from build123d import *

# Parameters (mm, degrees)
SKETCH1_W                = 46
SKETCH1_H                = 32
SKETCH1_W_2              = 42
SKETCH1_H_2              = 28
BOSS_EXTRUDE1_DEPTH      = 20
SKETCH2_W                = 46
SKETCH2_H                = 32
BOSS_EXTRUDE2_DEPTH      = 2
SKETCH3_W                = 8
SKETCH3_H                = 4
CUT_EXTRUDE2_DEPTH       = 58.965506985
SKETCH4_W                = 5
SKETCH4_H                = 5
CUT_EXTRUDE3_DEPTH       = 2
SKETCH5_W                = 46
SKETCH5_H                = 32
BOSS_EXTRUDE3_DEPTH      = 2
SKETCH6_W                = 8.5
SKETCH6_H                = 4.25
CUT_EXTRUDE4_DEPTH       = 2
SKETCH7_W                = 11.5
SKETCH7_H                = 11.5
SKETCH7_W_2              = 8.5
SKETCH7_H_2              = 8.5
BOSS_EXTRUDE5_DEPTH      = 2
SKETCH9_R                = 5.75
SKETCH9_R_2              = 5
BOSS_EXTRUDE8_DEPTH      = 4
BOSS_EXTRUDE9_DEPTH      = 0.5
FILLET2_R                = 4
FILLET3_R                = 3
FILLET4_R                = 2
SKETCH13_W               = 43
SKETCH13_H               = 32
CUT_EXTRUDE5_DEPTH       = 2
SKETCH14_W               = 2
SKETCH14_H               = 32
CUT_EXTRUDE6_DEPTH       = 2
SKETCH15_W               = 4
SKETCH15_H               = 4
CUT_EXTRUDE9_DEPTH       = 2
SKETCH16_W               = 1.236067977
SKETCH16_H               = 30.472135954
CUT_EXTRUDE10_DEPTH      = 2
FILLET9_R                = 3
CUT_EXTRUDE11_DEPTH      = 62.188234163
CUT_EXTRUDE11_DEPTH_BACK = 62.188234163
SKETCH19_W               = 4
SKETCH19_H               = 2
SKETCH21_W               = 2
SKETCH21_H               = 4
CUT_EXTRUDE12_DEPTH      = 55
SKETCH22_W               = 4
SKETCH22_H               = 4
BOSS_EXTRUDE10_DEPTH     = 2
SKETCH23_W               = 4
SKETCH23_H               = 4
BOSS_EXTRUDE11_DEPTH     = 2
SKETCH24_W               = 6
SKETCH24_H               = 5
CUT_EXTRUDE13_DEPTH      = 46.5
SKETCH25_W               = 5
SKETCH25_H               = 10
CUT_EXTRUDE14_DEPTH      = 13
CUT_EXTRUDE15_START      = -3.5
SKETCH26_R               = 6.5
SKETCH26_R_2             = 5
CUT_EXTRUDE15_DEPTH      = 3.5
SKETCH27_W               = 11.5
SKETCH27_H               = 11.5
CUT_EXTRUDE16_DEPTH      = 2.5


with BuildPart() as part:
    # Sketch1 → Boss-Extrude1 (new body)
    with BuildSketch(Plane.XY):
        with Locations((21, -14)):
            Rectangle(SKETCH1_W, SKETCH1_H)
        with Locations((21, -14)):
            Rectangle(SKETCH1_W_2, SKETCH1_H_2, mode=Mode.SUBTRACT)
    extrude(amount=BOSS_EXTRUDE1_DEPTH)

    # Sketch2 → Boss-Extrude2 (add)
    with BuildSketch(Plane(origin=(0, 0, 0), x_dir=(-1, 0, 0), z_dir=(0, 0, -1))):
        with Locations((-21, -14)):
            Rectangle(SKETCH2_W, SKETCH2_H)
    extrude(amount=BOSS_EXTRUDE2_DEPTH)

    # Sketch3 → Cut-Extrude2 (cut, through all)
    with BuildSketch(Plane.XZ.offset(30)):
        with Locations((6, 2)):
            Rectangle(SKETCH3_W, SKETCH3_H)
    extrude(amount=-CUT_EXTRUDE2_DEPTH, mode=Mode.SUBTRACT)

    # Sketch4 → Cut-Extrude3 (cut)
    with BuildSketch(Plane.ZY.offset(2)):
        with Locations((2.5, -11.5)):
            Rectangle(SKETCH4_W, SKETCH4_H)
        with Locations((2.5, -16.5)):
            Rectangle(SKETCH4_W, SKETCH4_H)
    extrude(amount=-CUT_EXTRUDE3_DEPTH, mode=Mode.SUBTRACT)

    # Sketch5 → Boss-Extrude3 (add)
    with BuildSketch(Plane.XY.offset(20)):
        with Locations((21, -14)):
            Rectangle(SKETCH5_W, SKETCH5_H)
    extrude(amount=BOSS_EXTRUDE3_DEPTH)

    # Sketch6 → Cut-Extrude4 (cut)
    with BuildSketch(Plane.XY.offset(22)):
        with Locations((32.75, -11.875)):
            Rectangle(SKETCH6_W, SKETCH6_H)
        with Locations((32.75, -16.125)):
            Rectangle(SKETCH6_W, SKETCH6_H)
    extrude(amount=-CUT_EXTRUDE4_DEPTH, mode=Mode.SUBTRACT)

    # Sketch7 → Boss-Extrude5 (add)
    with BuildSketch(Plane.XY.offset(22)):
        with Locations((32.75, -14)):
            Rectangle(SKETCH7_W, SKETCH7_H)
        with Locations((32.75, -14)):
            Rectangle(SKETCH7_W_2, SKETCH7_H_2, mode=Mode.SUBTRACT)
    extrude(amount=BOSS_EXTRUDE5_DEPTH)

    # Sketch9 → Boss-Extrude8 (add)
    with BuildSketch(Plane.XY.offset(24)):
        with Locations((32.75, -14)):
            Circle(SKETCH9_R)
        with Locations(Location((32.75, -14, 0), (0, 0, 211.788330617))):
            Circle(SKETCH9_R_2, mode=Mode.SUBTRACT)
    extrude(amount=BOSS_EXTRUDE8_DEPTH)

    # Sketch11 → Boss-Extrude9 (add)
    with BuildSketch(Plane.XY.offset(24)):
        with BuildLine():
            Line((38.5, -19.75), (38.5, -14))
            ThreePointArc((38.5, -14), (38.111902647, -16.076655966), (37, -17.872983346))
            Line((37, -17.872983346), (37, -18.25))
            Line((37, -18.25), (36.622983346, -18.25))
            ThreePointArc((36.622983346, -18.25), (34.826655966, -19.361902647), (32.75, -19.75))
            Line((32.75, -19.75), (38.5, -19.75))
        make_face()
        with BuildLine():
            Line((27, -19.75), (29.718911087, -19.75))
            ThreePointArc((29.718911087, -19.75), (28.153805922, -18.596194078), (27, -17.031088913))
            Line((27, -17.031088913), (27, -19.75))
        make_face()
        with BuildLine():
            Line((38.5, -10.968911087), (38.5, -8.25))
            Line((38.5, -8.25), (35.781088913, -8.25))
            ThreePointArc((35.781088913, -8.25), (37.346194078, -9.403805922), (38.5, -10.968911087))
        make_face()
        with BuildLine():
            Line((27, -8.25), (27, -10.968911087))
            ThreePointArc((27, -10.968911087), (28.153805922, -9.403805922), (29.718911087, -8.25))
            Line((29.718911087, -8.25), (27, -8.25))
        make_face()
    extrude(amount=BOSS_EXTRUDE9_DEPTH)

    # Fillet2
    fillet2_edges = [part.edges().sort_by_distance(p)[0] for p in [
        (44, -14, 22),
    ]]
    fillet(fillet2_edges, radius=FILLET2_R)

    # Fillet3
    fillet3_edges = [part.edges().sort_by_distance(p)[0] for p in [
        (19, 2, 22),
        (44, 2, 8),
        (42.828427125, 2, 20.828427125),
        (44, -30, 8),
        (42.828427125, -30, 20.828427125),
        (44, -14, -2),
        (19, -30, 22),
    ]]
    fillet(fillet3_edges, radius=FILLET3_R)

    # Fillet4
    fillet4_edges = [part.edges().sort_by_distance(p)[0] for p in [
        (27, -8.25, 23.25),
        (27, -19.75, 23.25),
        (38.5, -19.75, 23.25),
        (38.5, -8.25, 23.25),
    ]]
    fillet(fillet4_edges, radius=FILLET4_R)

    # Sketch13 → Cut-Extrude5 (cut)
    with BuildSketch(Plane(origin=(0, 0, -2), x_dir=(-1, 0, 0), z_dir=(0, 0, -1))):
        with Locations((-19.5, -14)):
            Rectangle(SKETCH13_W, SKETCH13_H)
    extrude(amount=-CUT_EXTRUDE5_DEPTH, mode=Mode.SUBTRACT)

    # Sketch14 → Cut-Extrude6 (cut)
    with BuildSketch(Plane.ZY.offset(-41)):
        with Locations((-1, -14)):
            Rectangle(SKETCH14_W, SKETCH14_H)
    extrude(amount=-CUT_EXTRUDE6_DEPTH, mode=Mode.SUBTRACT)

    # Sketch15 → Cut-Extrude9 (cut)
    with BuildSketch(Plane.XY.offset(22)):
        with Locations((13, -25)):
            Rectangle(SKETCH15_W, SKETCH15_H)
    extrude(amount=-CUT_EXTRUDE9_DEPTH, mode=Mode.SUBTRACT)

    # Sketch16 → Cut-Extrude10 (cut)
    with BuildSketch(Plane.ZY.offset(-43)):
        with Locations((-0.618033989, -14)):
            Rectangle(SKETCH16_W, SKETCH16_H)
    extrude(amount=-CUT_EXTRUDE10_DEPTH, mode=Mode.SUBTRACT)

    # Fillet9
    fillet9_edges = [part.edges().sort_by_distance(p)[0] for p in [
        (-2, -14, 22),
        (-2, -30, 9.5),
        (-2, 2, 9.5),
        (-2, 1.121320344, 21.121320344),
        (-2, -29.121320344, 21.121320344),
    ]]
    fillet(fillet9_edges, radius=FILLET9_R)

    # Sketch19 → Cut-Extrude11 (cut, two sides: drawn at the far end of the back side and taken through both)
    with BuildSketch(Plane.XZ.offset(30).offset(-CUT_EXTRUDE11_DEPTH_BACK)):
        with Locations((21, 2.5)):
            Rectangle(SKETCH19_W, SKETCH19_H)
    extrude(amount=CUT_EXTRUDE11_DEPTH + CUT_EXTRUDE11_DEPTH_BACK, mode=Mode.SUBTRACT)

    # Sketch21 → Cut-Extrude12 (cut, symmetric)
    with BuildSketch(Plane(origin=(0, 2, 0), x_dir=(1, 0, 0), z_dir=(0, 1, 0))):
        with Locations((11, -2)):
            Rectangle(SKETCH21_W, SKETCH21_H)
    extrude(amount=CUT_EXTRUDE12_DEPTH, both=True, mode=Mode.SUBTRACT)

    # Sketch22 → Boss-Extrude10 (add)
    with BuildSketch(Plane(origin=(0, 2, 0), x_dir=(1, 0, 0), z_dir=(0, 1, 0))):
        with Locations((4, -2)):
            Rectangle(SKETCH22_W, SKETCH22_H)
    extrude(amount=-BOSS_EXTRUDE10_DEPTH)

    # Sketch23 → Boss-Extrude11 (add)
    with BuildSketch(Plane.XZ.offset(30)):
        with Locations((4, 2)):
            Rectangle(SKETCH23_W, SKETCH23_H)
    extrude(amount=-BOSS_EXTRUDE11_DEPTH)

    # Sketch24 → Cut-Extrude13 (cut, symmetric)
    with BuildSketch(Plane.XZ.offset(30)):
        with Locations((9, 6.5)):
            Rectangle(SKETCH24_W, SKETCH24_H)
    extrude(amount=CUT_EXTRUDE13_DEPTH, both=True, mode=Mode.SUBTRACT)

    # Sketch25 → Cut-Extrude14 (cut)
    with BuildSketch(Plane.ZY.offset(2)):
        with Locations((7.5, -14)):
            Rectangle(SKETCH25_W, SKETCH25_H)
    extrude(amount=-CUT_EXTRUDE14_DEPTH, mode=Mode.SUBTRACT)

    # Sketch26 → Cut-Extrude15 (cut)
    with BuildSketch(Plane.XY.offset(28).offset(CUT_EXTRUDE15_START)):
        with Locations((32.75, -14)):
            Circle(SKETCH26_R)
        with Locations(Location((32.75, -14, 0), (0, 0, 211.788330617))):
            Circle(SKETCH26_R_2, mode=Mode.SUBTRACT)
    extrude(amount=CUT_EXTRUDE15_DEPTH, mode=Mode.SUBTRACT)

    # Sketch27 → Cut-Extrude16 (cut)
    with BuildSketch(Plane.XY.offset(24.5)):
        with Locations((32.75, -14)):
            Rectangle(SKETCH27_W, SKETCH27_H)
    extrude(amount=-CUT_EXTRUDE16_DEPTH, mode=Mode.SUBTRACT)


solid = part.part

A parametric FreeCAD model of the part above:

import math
import FreeCAD as App
import Part
import Sketcher


def edges_at(feature, points):
    """Names of the edges that pass closest to the given points."""
    edges = feature.Shape.Edges
    near = lambda p: min(range(len(edges)), key=lambda i: edges[i].distToShape(Part.Vertex(*p))[0])
    return sorted({f"Edge{near(p) + 1}" for p in points})

doc = App.newDocument("Part")
body = doc.addObject("PartDesign::Body", "Body")

sketch1 = body.newObject("Sketcher::SketchObject", "Sketch")
sketch1.AttachmentSupport = (doc.getObject("XY_Plane"), [""])
sketch1.MapMode = "FlatFace"
sketch1.addGeometry(Part.LineSegment(App.Vector(-2, 2, 0), App.Vector(-2, -30, 0)), False)
sketch1.addGeometry(Part.LineSegment(App.Vector(-2, -30, 0), App.Vector(44, -30, 0)), False)
sketch1.addGeometry(Part.LineSegment(App.Vector(44, -30, 0), App.Vector(44, 2, 0)), False)
sketch1.addGeometry(Part.LineSegment(App.Vector(44, 2, 0), App.Vector(-2, 2, 0)), False)
sketch1.addGeometry(Part.LineSegment(App.Vector(42, -28, 0), App.Vector(0, -28, 0)), False)
sketch1.addGeometry(Part.LineSegment(App.Vector(0, -28, 0), App.Vector(0, 0, 0)), False)
sketch1.addGeometry(Part.LineSegment(App.Vector(0, 0, 0), App.Vector(42, 0, 0)), False)
sketch1.addGeometry(Part.LineSegment(App.Vector(42, 0, 0), App.Vector(42, -28, 0)), False)
sketch1.addConstraint(Sketcher.Constraint("Coincident", 0, 2, 1, 1))
sketch1.addConstraint(Sketcher.Constraint("Coincident", 1, 2, 2, 1))
sketch1.addConstraint(Sketcher.Constraint("Coincident", 2, 2, 3, 1))
sketch1.addConstraint(Sketcher.Constraint("Coincident", 3, 2, 0, 1))
sketch1.addConstraint(Sketcher.Constraint("Coincident", 4, 2, 5, 1))
sketch1.addConstraint(Sketcher.Constraint("Coincident", 5, 2, 6, 1))
sketch1.addConstraint(Sketcher.Constraint("Coincident", 6, 2, 7, 1))
sketch1.addConstraint(Sketcher.Constraint("Coincident", 7, 2, 4, 1))
sketch1.addConstraint(Sketcher.Constraint("Vertical", 0))
sketch1.addConstraint(Sketcher.Constraint("Horizontal", 1))
sketch1.addConstraint(Sketcher.Constraint("Vertical", 2))
sketch1.addConstraint(Sketcher.Constraint("Horizontal", 3))
sketch1.addConstraint(Sketcher.Constraint("Horizontal", 4))
sketch1.addConstraint(Sketcher.Constraint("Vertical", 5))
sketch1.addConstraint(Sketcher.Constraint("Horizontal", 6))
sketch1.addConstraint(Sketcher.Constraint("Vertical", 7))
sketch1.addConstraint(Sketcher.Constraint("Coincident", 5, 2, -1, 1))
sketch1.addConstraint(Sketcher.Constraint("DistanceX", 1, 1, 1, 2, 46.0))
sketch1.addConstraint(Sketcher.Constraint("DistanceX", 4, 2, 4, 1, 42.0))
sketch1.addConstraint(Sketcher.Constraint("DistanceY", 0, 2, 0, 1, 32.0))
sketch1.addConstraint(Sketcher.Constraint("DistanceY", 5, 1, 5, 2, 28.0))
sketch1.addConstraint(Sketcher.Constraint("DistanceX", 0, 2, -1, 1, 2.0))
sketch1.addConstraint(Sketcher.Constraint("DistanceY", 0, 2, -1, 1, 30.0))
pad1 = body.newObject("PartDesign::Pad", "Pad")
pad1.Profile = sketch1
pad1.Length = 20

sketch2 = body.newObject("Sketcher::SketchObject", "Sketch001")
sketch2.AttachmentSupport = (doc.getObject("XY_Plane"), [""])
sketch2.MapMode = "FlatFace"
sketch2.addGeometry(Part.LineSegment(App.Vector(44, 2, 0), App.Vector(44, -30, 0)), False)
sketch2.addGeometry(Part.LineSegment(App.Vector(44, -30, 0), App.Vector(-2, -30, 0)), False)
sketch2.addGeometry(Part.LineSegment(App.Vector(-2, -30, 0), App.Vector(-2, 2, 0)), False)
sketch2.addGeometry(Part.LineSegment(App.Vector(-2, 2, 0), App.Vector(44, 2, 0)), False)
sketch2.addConstraint(Sketcher.Constraint("Coincident", 0, 2, 1, 1))
sketch2.addConstraint(Sketcher.Constraint("Coincident", 1, 2, 2, 1))
sketch2.addConstraint(Sketcher.Constraint("Coincident", 2, 2, 3, 1))
sketch2.addConstraint(Sketcher.Constraint("Coincident", 3, 2, 0, 1))
sketch2.addConstraint(Sketcher.Constraint("Vertical", 0))
sketch2.addConstraint(Sketcher.Constraint("Horizontal", 1))
sketch2.addConstraint(Sketcher.Constraint("Vertical", 2))
sketch2.addConstraint(Sketcher.Constraint("Horizontal", 3))
sketch2.addConstraint(Sketcher.Constraint("DistanceX", 1, 2, 1, 1, 46.0))
sketch2.addConstraint(Sketcher.Constraint("DistanceY", 0, 2, 0, 1, 32.0))
sketch2.addConstraint(Sketcher.Constraint("DistanceX", -1, 1, 0, 2, 44.0))
sketch2.addConstraint(Sketcher.Constraint("DistanceY", 0, 2, -1, 1, 30.0))
pad2 = body.newObject("PartDesign::Pad", "Pad001")
pad2.Profile = sketch2
pad2.Length = 2
pad2.Reversed = True

sketch3 = body.newObject("Sketcher::SketchObject", "Sketch002")
sketch3.AttachmentSupport = (doc.getObject("XZ_Plane"), [""])
sketch3.MapMode = "FlatFace"
sketch3.AttachmentOffset = App.Placement(App.Vector(0, 0, 30), App.Rotation())
sketch3.addGeometry(Part.LineSegment(App.Vector(2, 4, 0), App.Vector(2, 0, 0)), False)
sketch3.addGeometry(Part.LineSegment(App.Vector(2, 0, 0), App.Vector(10, 0, 0)), False)
sketch3.addGeometry(Part.LineSegment(App.Vector(10, 0, 0), App.Vector(10, 4, 0)), False)
sketch3.addGeometry(Part.LineSegment(App.Vector(10, 4, 0), App.Vector(2, 4, 0)), False)
sketch3.addConstraint(Sketcher.Constraint("Coincident", 0, 2, 1, 1))
sketch3.addConstraint(Sketcher.Constraint("Coincident", 1, 2, 2, 1))
sketch3.addConstraint(Sketcher.Constraint("Coincident", 2, 2, 3, 1))
sketch3.addConstraint(Sketcher.Constraint("Coincident", 3, 2, 0, 1))
sketch3.addConstraint(Sketcher.Constraint("Vertical", 0))
sketch3.addConstraint(Sketcher.Constraint("Horizontal", 1))
sketch3.addConstraint(Sketcher.Constraint("Vertical", 2))
sketch3.addConstraint(Sketcher.Constraint("Horizontal", 3))
sketch3.addConstraint(Sketcher.Constraint("PointOnObject", 0, 2, -1))
sketch3.addConstraint(Sketcher.Constraint("DistanceX", 1, 1, 1, 2, 8.0))
sketch3.addConstraint(Sketcher.Constraint("DistanceY", 0, 2, 0, 1, 4.0))
sketch3.addConstraint(Sketcher.Constraint("DistanceX", -1, 1, 0, 2, 2.0))
pocket1 = body.newObject("PartDesign::Pocket", "Pocket")
pocket1.Profile = sketch3
pocket1.Type = "ThroughAll"

sketch4 = body.newObject("Sketcher::SketchObject", "Sketch003")
sketch4.AttachmentSupport = (doc.getObject("YZ_Plane"), [""])
sketch4.MapMode = "FlatFace"
sketch4.AttachmentOffset = App.Placement(App.Vector(0, 0, -2), App.Rotation())
sketch4.addGeometry(Part.LineSegment(App.Vector(-9, 0, 0), App.Vector(-19, 0, 0)), False)
sketch4.addGeometry(Part.LineSegment(App.Vector(-19, 0, 0), App.Vector(-19, 5, 0)), False)
sketch4.addGeometry(Part.LineSegment(App.Vector(-19, 5, 0), App.Vector(-9, 5, 0)), False)
sketch4.addGeometry(Part.LineSegment(App.Vector(-9, 5, 0), App.Vector(-9, 0, 0)), False)
sketch4.addConstraint(Sketcher.Constraint("Coincident", 0, 2, 1, 1))
sketch4.addConstraint(Sketcher.Constraint("Coincident", 1, 2, 2, 1))
sketch4.addConstraint(Sketcher.Constraint("Coincident", 2, 2, 3, 1))
sketch4.addConstraint(Sketcher.Constraint("Coincident", 3, 2, 0, 1))
sketch4.addConstraint(Sketcher.Constraint("Horizontal", 0))
sketch4.addConstraint(Sketcher.Constraint("Vertical", 1))
sketch4.addConstraint(Sketcher.Constraint("Horizontal", 2))
sketch4.addConstraint(Sketcher.Constraint("Vertical", 3))
sketch4.addConstraint(Sketcher.Constraint("PointOnObject", 0, 2, -1))
sketch4.addConstraint(Sketcher.Constraint("DistanceX", 0, 2, 0, 1, 10.0))
sketch4.addConstraint(Sketcher.Constraint("DistanceY", 1, 1, 1, 2, 5.0))
sketch4.addConstraint(Sketcher.Constraint("DistanceX", 0, 2, -1, 1, 19.0))
pocket2 = body.newObject("PartDesign::Pocket", "Pocket001")
pocket2.Profile = sketch4
pocket2.Length = 2
pocket2.Reversed = True

sketch5 = body.newObject("Sketcher::SketchObject", "Sketch004")
sketch5.AttachmentSupport = (doc.getObject("XY_Plane"), [""])
sketch5.MapMode = "FlatFace"
sketch5.AttachmentOffset = App.Placement(App.Vector(0, 0, 20), App.Rotation())
sketch5.addGeometry(Part.LineSegment(App.Vector(-2, 2, 0), App.Vector(-2, -30, 0)), False)
sketch5.addGeometry(Part.LineSegment(App.Vector(-2, -30, 0), App.Vector(44, -30, 0)), False)
sketch5.addGeometry(Part.LineSegment(App.Vector(44, -30, 0), App.Vector(44, 2, 0)), False)
sketch5.addGeometry(Part.LineSegment(App.Vector(44, 2, 0), App.Vector(-2, 2, 0)), False)
sketch5.addConstraint(Sketcher.Constraint("Coincident", 0, 2, 1, 1))
sketch5.addConstraint(Sketcher.Constraint("Coincident", 1, 2, 2, 1))
sketch5.addConstraint(Sketcher.Constraint("Coincident", 2, 2, 3, 1))
sketch5.addConstraint(Sketcher.Constraint("Coincident", 3, 2, 0, 1))
sketch5.addConstraint(Sketcher.Constraint("Vertical", 0))
sketch5.addConstraint(Sketcher.Constraint("Horizontal", 1))
sketch5.addConstraint(Sketcher.Constraint("Vertical", 2))
sketch5.addConstraint(Sketcher.Constraint("Horizontal", 3))
sketch5.addConstraint(Sketcher.Constraint("DistanceX", 1, 1, 1, 2, 46.0))
sketch5.addConstraint(Sketcher.Constraint("DistanceY", 0, 2, 0, 1, 32.0))
sketch5.addConstraint(Sketcher.Constraint("DistanceX", 0, 2, -1, 1, 2.0))
sketch5.addConstraint(Sketcher.Constraint("DistanceY", 0, 2, -1, 1, 30.0))
pad3 = body.newObject("PartDesign::Pad", "Pad002")
pad3.Profile = sketch5
pad3.Length = 2

sketch6 = body.newObject("Sketcher::SketchObject", "Sketch005")
sketch6.AttachmentSupport = (doc.getObject("XY_Plane"), [""])
sketch6.MapMode = "FlatFace"
sketch6.AttachmentOffset = App.Placement(App.Vector(0, 0, 22), App.Rotation())
sketch6.addGeometry(Part.LineSegment(App.Vector(28, -10, 0), App.Vector(28, -18, 0)), False)
sketch6.addGeometry(Part.LineSegment(App.Vector(28, -18, 0), App.Vector(37, -18, 0)), False)
sketch6.addGeometry(Part.LineSegment(App.Vector(37, -18, 0), App.Vector(37, -10, 0)), False)
sketch6.addGeometry(Part.LineSegment(App.Vector(37, -10, 0), App.Vector(28, -10, 0)), False)
sketch6.addConstraint(Sketcher.Constraint("Coincident", 0, 2, 1, 1))
sketch6.addConstraint(Sketcher.Constraint("Coincident", 1, 2, 2, 1))
sketch6.addConstraint(Sketcher.Constraint("Coincident", 2, 2, 3, 1))
sketch6.addConstraint(Sketcher.Constraint("Coincident", 3, 2, 0, 1))
sketch6.addConstraint(Sketcher.Constraint("Vertical", 0))
sketch6.addConstraint(Sketcher.Constraint("Horizontal", 1))
sketch6.addConstraint(Sketcher.Constraint("Vertical", 2))
sketch6.addConstraint(Sketcher.Constraint("Horizontal", 3))
sketch6.addConstraint(Sketcher.Constraint("Equal", 3, 0))
sketch6.addConstraint(Sketcher.Constraint("DistanceX", 1, 1, 1, 2, 8.5))
sketch6.addConstraint(Sketcher.Constraint("DistanceX", -1, 1, 1, 2, 37.0))
sketch6.addConstraint(Sketcher.Constraint("DistanceY", 0, 2, -1, 1, 18.25))
pocket3 = body.newObject("PartDesign::Pocket", "Pocket002")
pocket3.Profile = sketch6
pocket3.Length = 2

sketch7 = body.newObject("Sketcher::SketchObject", "Sketch006")
sketch7.AttachmentSupport = (doc.getObject("XY_Plane"), [""])
sketch7.MapMode = "FlatFace"
sketch7.AttachmentOffset = App.Placement(App.Vector(0, 0, 22), App.Rotation())
sketch7.addGeometry(Part.LineSegment(App.Vector(27, -8, 0), App.Vector(27, -20, 0)), False)
sketch7.addGeometry(Part.LineSegment(App.Vector(27, -20, 0), App.Vector(38, -20, 0)), False)
sketch7.addGeometry(Part.LineSegment(App.Vector(38, -20, 0), App.Vector(38, -8, 0)), False)
sketch7.addGeometry(Part.LineSegment(App.Vector(38, -8, 0), App.Vector(27, -8, 0)), False)
sketch7.addGeometry(Part.LineSegment(App.Vector(37, -18, 0), App.Vector(28, -18, 0)), False)
sketch7.addGeometry(Part.LineSegment(App.Vector(28, -18, 0), App.Vector(28, -10, 0)), False)
sketch7.addGeometry(Part.LineSegment(App.Vector(28, -10, 0), App.Vector(37, -10, 0)), False)
sketch7.addGeometry(Part.LineSegment(App.Vector(37, -10, 0), App.Vector(37, -18, 0)), False)
sketch7.addConstraint(Sketcher.Constraint("Coincident", 0, 2, 1, 1))
sketch7.addConstraint(Sketcher.Constraint("Coincident", 1, 2, 2, 1))
sketch7.addConstraint(Sketcher.Constraint("Coincident", 2, 2, 3, 1))
sketch7.addConstraint(Sketcher.Constraint("Coincident", 3, 2, 0, 1))
sketch7.addConstraint(Sketcher.Constraint("Coincident", 4, 2, 5, 1))
sketch7.addConstraint(Sketcher.Constraint("Coincident", 5, 2, 6, 1))
sketch7.addConstraint(Sketcher.Constraint("Coincident", 6, 2, 7, 1))
sketch7.addConstraint(Sketcher.Constraint("Coincident", 7, 2, 4, 1))
sketch7.addConstraint(Sketcher.Constraint("Vertical", 0))
sketch7.addConstraint(Sketcher.Constraint("Horizontal", 1))
sketch7.addConstraint(Sketcher.Constraint("Vertical", 2))
sketch7.addConstraint(Sketcher.Constraint("Horizontal", 3))
sketch7.addConstraint(Sketcher.Constraint("Horizontal", 4))
sketch7.addConstraint(Sketcher.Constraint("Vertical", 5))
sketch7.addConstraint(Sketcher.Constraint("Horizontal", 6))
sketch7.addConstraint(Sketcher.Constraint("Vertical", 7))
sketch7.addConstraint(Sketcher.Constraint("Equal", 3, 0))
sketch7.addConstraint(Sketcher.Constraint("Equal", 6, 5))
sketch7.addConstraint(Sketcher.Constraint("DistanceX", 1, 1, 1, 2, 11.5))
sketch7.addConstraint(Sketcher.Constraint("DistanceX", 4, 2, 4, 1, 8.5))
sketch7.addConstraint(Sketcher.Constraint("DistanceX", -1, 1, 0, 2, 27.0))
sketch7.addConstraint(Sketcher.Constraint("DistanceX", -1, 1, 6, 2, 37.0))
sketch7.addConstraint(Sketcher.Constraint("DistanceY", 4, 2, 3, 2, 10.0))
sketch7.addConstraint(Sketcher.Constraint("DistanceY", 0, 2, -1, 1, 19.75))
pad4 = body.newObject("PartDesign::Pad", "Pad003")
pad4.Profile = sketch7
pad4.Length = 2

sketch8 = body.newObject("Sketcher::SketchObject", "Sketch007")
sketch8.AttachmentSupport = (doc.getObject("XY_Plane"), [""])
sketch8.MapMode = "FlatFace"
sketch8.AttachmentOffset = App.Placement(App.Vector(0, 0, 24), App.Rotation())
sketch8.addGeometry(Part.Circle(App.Vector(33, -14, 0), App.Vector(0, 0, 1), 6), False)
sketch8.addGeometry(Part.Circle(App.Vector(33, -14, 0), App.Vector(0, 0, 1), 5), False)
sketch8.addConstraint(Sketcher.Constraint("Coincident", 1, 3, 0, 3))
sketch8.addConstraint(Sketcher.Constraint("Diameter", 1, 10.0))
sketch8.addConstraint(Sketcher.Constraint("Diameter", 0, 11.5))
sketch8.addConstraint(Sketcher.Constraint("DistanceY", 0, 3, -1, 1, 14.0))
sketch8.addConstraint(Sketcher.Constraint("DistanceX", -1, 1, 0, 3, 32.75))
pad5 = body.newObject("PartDesign::Pad", "Pad004")
pad5.Profile = sketch8
pad5.Length = 4

sketch9 = body.newObject("Sketcher::SketchObject", "Sketch008")
sketch9.AttachmentSupport = (doc.getObject("XY_Plane"), [""])
sketch9.MapMode = "FlatFace"
sketch9.AttachmentOffset = App.Placement(App.Vector(0, 0, 24), App.Rotation())
sketch9.addGeometry(Part.LineSegment(App.Vector(38.5, -19.75, 0), App.Vector(38.5, -14, 0)), False)
sketch9.addGeometry(Part.ArcOfCircle(Part.Circle(App.Vector(32.75, -14, 0), App.Vector(0, 0, 1), 5.75), math.radians(-42), math.radians(0)), False)
sketch9.addGeometry(Part.LineSegment(App.Vector(37, -17.87, 0), App.Vector(37, -18.25, 0)), False)
sketch9.addGeometry(Part.LineSegment(App.Vector(37, -18.25, 0), App.Vector(36.62, -18.25, 0)), False)
sketch9.addGeometry(Part.ArcOfCircle(Part.Circle(App.Vector(32.75, -14, 0), App.Vector(0, 0, 1), 5.75), math.radians(-90), math.radians(-48)), False)
sketch9.addGeometry(Part.LineSegment(App.Vector(32.75, -19.75, 0), App.Vector(38.5, -19.75, 0)), False)
sketch9.addGeometry(Part.LineSegment(App.Vector(27, -19.75, 0), App.Vector(29.72, -19.75, 0)), False)
sketch9.addGeometry(Part.ArcOfCircle(Part.Circle(App.Vector(32.75, -14, 0), App.Vector(0, 0, 1), 6.5), math.radians(-152), math.radians(-118)), False)
sketch9.addGeometry(Part.LineSegment(App.Vector(27, -17.03, 0), App.Vector(27, -19.75, 0)), False)
sketch9.addGeometry(Part.LineSegment(App.Vector(38.5, -10.97, 0), App.Vector(38.5, -8.25, 0)), False)
sketch9.addGeometry(Part.LineSegment(App.Vector(38.5, -8.25, 0), App.Vector(35.78, -8.25, 0)), False)
sketch9.addGeometry(Part.ArcOfCircle(Part.Circle(App.Vector(32.75, -14, 0), App.Vector(0, 0, 1), 6.5), math.radians(28), math.radians(62)), False)
sketch9.addGeometry(Part.LineSegment(App.Vector(27, -8.25, 0), App.Vector(27, -10.97, 0)), False)
sketch9.addGeometry(Part.ArcOfCircle(Part.Circle(App.Vector(32.75, -14, 0), App.Vector(0, 0, 1), 6.5), math.radians(118), math.radians(152)), False)
sketch9.addGeometry(Part.LineSegment(App.Vector(29.72, -8.25, 0), App.Vector(27, -8.25, 0)), False)
sketch9.addConstraint(Sketcher.Constraint("Tangent", 0, 2, 1, 2))
sketch9.addConstraint(Sketcher.Constraint("Coincident", 1, 1, 2, 1))
sketch9.addConstraint(Sketcher.Constraint("Coincident", 2, 2, 3, 1))
sketch9.addConstraint(Sketcher.Constraint("Coincident", 3, 2, 4, 2))
sketch9.addConstraint(Sketcher.Constraint("Tangent", 4, 1, 5, 1))
sketch9.addConstraint(Sketcher.Constraint("Coincident", 5, 2, 0, 1))
sketch9.addConstraint(Sketcher.Constraint("Coincident", 6, 2, 7, 2))
sketch9.addConstraint(Sketcher.Constraint("Coincident", 7, 1, 8, 1))
sketch9.addConstraint(Sketcher.Constraint("Coincident", 8, 2, 6, 1))
sketch9.addConstraint(Sketcher.Constraint("Coincident", 9, 2, 10, 1))
sketch9.addConstraint(Sketcher.Constraint("Coincident", 10, 2, 11, 2))
sketch9.addConstraint(Sketcher.Constraint("Coincident", 11, 1, 9, 1))
sketch9.addConstraint(Sketcher.Constraint("Coincident", 12, 2, 13, 2))
sketch9.addConstraint(Sketcher.Constraint("Coincident", 13, 1, 14, 1))
sketch9.addConstraint(Sketcher.Constraint("Coincident", 14, 2, 12, 1))
sketch9.addConstraint(Sketcher.Constraint("Vertical", 0))
sketch9.addConstraint(Sketcher.Constraint("Vertical", 2))
sketch9.addConstraint(Sketcher.Constraint("Horizontal", 3))
sketch9.addConstraint(Sketcher.Constraint("Horizontal", 5))
sketch9.addConstraint(Sketcher.Constraint("Horizontal", 6))
sketch9.addConstraint(Sketcher.Constraint("Vertical", 8))
sketch9.addConstraint(Sketcher.Constraint("Vertical", 9))
sketch9.addConstraint(Sketcher.Constraint("Horizontal", 10))
sketch9.addConstraint(Sketcher.Constraint("Vertical", 12))
sketch9.addConstraint(Sketcher.Constraint("Horizontal", 14))
sketch9.addConstraint(Sketcher.Constraint("Coincident", 4, 3, 1, 3))
sketch9.addConstraint(Sketcher.Constraint("Coincident", 7, 3, 1, 3))
sketch9.addConstraint(Sketcher.Constraint("Coincident", 11, 3, 1, 3))
sketch9.addConstraint(Sketcher.Constraint("Coincident", 13, 3, 1, 3))
sketch9.addConstraint(Sketcher.Constraint("Equal", 1, 4))
sketch9.addConstraint(Sketcher.Constraint("Equal", 7, 11))
sketch9.addConstraint(Sketcher.Constraint("Equal", 11, 13))
sketch9.addConstraint(Sketcher.Constraint("Horizontal", 5, 2, 6, 2))
sketch9.addConstraint(Sketcher.Constraint("Horizontal", 11, 1, 12, 2))
sketch9.addConstraint(Sketcher.Constraint("Horizontal", 10, 2, 13, 1))
sketch9.addConstraint(Sketcher.Constraint("Vertical", 5, 2, 9, 2))
sketch9.addConstraint(Sketcher.Constraint("Vertical", 8, 2, 12, 2))
sketch9.addConstraint(Sketcher.Constraint("Vertical", 6, 2, 13, 1))
sketch9.addConstraint(Sketcher.Constraint("Equal", 3, 2))
sketch9.addConstraint(Sketcher.Constraint("Radius", 7, 6.5))
sketch9.addConstraint(Sketcher.Constraint("Radius", 1, 5.75))
sketch9.addConstraint(Sketcher.Constraint("DistanceY", 1, 3, -1, 1, 14.0))
sketch9.addConstraint(Sketcher.Constraint("DistanceX", -1, 1, 1, 1, 37.0))
sketch9.addConstraint(Sketcher.Constraint("DistanceX", -1, 1, 7, 1, 27.0))
pad6 = body.newObject("PartDesign::Pad", "Pad005")
pad6.Profile = sketch9
pad6.Length = 0.5
doc.recompute()

fillet = body.newObject("PartDesign::Fillet", "Fillet")
fillet.Base = (pad6, edges_at(pad6, [(44, -14, 22)]))
fillet.Radius = 4
doc.recompute()

fillet2 = body.newObject("PartDesign::Fillet", "Fillet001")
fillet2.Base = (fillet, edges_at(fillet, [
    (19, 2, 22),
    (44, 2, 8),
    (42.828, 2, 20.828),
    (44, -30, 8),
    (42.828, -30, 20.828),
    (44, -14, -2),
    (19, -30, 22),
]))
fillet2.Radius = 3
doc.recompute()

fillet3 = body.newObject("PartDesign::Fillet", "Fillet002")
fillet3.Base = (fillet2, edges_at(fillet2, [
    (27, -8.25, 23.25),
    (27, -19.75, 23.25),
    (38.5, -19.75, 23.25),
    (38.5, -8.25, 23.25),
]))
fillet3.Radius = 2

sketch10 = body.newObject("Sketcher::SketchObject", "Sketch009")
sketch10.AttachmentSupport = (doc.getObject("XY_Plane"), [""])
sketch10.MapMode = "FlatFace"
sketch10.AttachmentOffset = App.Placement(App.Vector(0, 0, -2), App.Rotation())
sketch10.addGeometry(Part.LineSegment(App.Vector(41, 2, 0), App.Vector(41, -30, 0)), False)
sketch10.addGeometry(Part.LineSegment(App.Vector(41, -30, 0), App.Vector(-2, -30, 0)), False)
sketch10.addGeometry(Part.LineSegment(App.Vector(-2, -30, 0), App.Vector(-2, 2, 0)), False)
sketch10.addGeometry(Part.LineSegment(App.Vector(-2, 2, 0), App.Vector(41, 2, 0)), False)
sketch10.addConstraint(Sketcher.Constraint("Coincident", 0, 2, 1, 1))
sketch10.addConstraint(Sketcher.Constraint("Coincident", 1, 2, 2, 1))
sketch10.addConstraint(Sketcher.Constraint("Coincident", 2, 2, 3, 1))
sketch10.addConstraint(Sketcher.Constraint("Coincident", 3, 2, 0, 1))
sketch10.addConstraint(Sketcher.Constraint("Vertical", 0))
sketch10.addConstraint(Sketcher.Constraint("Horizontal", 1))
sketch10.addConstraint(Sketcher.Constraint("Vertical", 2))
sketch10.addConstraint(Sketcher.Constraint("Horizontal", 3))
sketch10.addConstraint(Sketcher.Constraint("DistanceX", 1, 2, 1, 1, 43.0))
sketch10.addConstraint(Sketcher.Constraint("DistanceY", 0, 2, 0, 1, 32.0))
sketch10.addConstraint(Sketcher.Constraint("DistanceX", -1, 1, 0, 2, 41.0))
sketch10.addConstraint(Sketcher.Constraint("DistanceY", 0, 2, -1, 1, 30.0))
pocket4 = body.newObject("PartDesign::Pocket", "Pocket003")
pocket4.Profile = sketch10
pocket4.Length = 2
pocket4.Reversed = True

sketch11 = body.newObject("Sketcher::SketchObject", "Sketch010")
sketch11.AttachmentSupport = (doc.getObject("YZ_Plane"), [""])
sketch11.MapMode = "FlatFace"
sketch11.AttachmentOffset = App.Placement(App.Vector(0, 0, 41), App.Rotation())
sketch11.addGeometry(Part.LineSegment(App.Vector(2, -2, 0), App.Vector(-30, -2, 0)), False)
sketch11.addGeometry(Part.LineSegment(App.Vector(-30, -2, 0), App.Vector(-30, 0, 0)), False)
sketch11.addGeometry(Part.LineSegment(App.Vector(-30, 0, 0), App.Vector(2, 0, 0)), False)
sketch11.addGeometry(Part.LineSegment(App.Vector(2, 0, 0), App.Vector(2, -2, 0)), False)
sketch11.addConstraint(Sketcher.Constraint("Coincident", 0, 2, 1, 1))
sketch11.addConstraint(Sketcher.Constraint("Coincident", 1, 2, 2, 1))
sketch11.addConstraint(Sketcher.Constraint("Coincident", 2, 2, 3, 1))
sketch11.addConstraint(Sketcher.Constraint("Coincident", 3, 2, 0, 1))
sketch11.addConstraint(Sketcher.Constraint("Horizontal", 0))
sketch11.addConstraint(Sketcher.Constraint("Vertical", 1))
sketch11.addConstraint(Sketcher.Constraint("Horizontal", 2))
sketch11.addConstraint(Sketcher.Constraint("Vertical", 3))
sketch11.addConstraint(Sketcher.Constraint("PointOnObject", 1, 2, -1))
sketch11.addConstraint(Sketcher.Constraint("DistanceX", 0, 2, 0, 1, 32.0))
sketch11.addConstraint(Sketcher.Constraint("DistanceY", 1, 1, 1, 2, 2.0))
sketch11.addConstraint(Sketcher.Constraint("DistanceX", 0, 2, -1, 1, 30.0))
pocket5 = body.newObject("PartDesign::Pocket", "Pocket004")
pocket5.Profile = sketch11
pocket5.Length = 2
pocket5.Reversed = True

sketch12 = body.newObject("Sketcher::SketchObject", "Sketch011")
sketch12.AttachmentSupport = (doc.getObject("XY_Plane"), [""])
sketch12.MapMode = "FlatFace"
sketch12.AttachmentOffset = App.Placement(App.Vector(0, 0, 22), App.Rotation())
sketch12.addGeometry(Part.LineSegment(App.Vector(11, -23, 0), App.Vector(11, -27, 0)), False)
sketch12.addGeometry(Part.LineSegment(App.Vector(11, -27, 0), App.Vector(15, -27, 0)), False)
sketch12.addGeometry(Part.LineSegment(App.Vector(15, -27, 0), App.Vector(15, -23, 0)), False)
sketch12.addGeometry(Part.LineSegment(App.Vector(15, -23, 0), App.Vector(11, -23, 0)), False)
sketch12.addConstraint(Sketcher.Constraint("Coincident", 0, 2, 1, 1))
sketch12.addConstraint(Sketcher.Constraint("Coincident", 1, 2, 2, 1))
sketch12.addConstraint(Sketcher.Constraint("Coincident", 2, 2, 3, 1))
sketch12.addConstraint(Sketcher.Constraint("Coincident", 3, 2, 0, 1))
sketch12.addConstraint(Sketcher.Constraint("Vertical", 0))
sketch12.addConstraint(Sketcher.Constraint("Horizontal", 1))
sketch12.addConstraint(Sketcher.Constraint("Vertical", 2))
sketch12.addConstraint(Sketcher.Constraint("Horizontal", 3))
sketch12.addConstraint(Sketcher.Constraint("Equal", 3, 0))
sketch12.addConstraint(Sketcher.Constraint("DistanceX", 1, 1, 1, 2, 4.0))
sketch12.addConstraint(Sketcher.Constraint("DistanceX", -1, 1, 0, 2, 11.0))
sketch12.addConstraint(Sketcher.Constraint("DistanceY", 0, 2, -1, 1, 27.0))
pocket6 = body.newObject("PartDesign::Pocket", "Pocket005")
pocket6.Profile = sketch12
pocket6.Length = 2

sketch13 = body.newObject("Sketcher::SketchObject", "Sketch012")
sketch13.AttachmentSupport = (doc.getObject("YZ_Plane"), [""])
sketch13.MapMode = "FlatFace"
sketch13.AttachmentOffset = App.Placement(App.Vector(0, 0, 43), App.Rotation())
sketch13.addGeometry(Part.LineSegment(App.Vector(1.2, -1.2, 0), App.Vector(-29.2, -1.2, 0)), False)
sketch13.addGeometry(Part.LineSegment(App.Vector(-29.2, -1.2, 0), App.Vector(-29.2, 0, 0)), False)
sketch13.addGeometry(Part.LineSegment(App.Vector(-29.2, 0, 0), App.Vector(1.2, 0, 0)), False)
sketch13.addGeometry(Part.LineSegment(App.Vector(1.2, 0, 0), App.Vector(1.2, -1.2, 0)), False)
sketch13.addConstraint(Sketcher.Constraint("Coincident", 0, 2, 1, 1))
sketch13.addConstraint(Sketcher.Constraint("Coincident", 1, 2, 2, 1))
sketch13.addConstraint(Sketcher.Constraint("Coincident", 2, 2, 3, 1))
sketch13.addConstraint(Sketcher.Constraint("Coincident", 3, 2, 0, 1))
sketch13.addConstraint(Sketcher.Constraint("Horizontal", 0))
sketch13.addConstraint(Sketcher.Constraint("Vertical", 1))
sketch13.addConstraint(Sketcher.Constraint("Horizontal", 2))
sketch13.addConstraint(Sketcher.Constraint("Vertical", 3))
sketch13.addConstraint(Sketcher.Constraint("PointOnObject", 1, 2, -1))
sketch13.addConstraint(Sketcher.Constraint("DistanceX", 0, 2, 0, 1, 30.472136))
sketch13.addConstraint(Sketcher.Constraint("DistanceY", 1, 1, 1, 2, 1.236068))
sketch13.addConstraint(Sketcher.Constraint("DistanceX", 0, 2, -1, 1, 29.236068))
pocket7 = body.newObject("PartDesign::Pocket", "Pocket006")
pocket7.Profile = sketch13
pocket7.Length = 2
pocket7.Reversed = True
doc.recompute()

fillet4 = body.newObject("PartDesign::Fillet", "Fillet003")
fillet4.Base = (pocket7, edges_at(pocket7, [
    (-2, -14, 22),
    (-2, -30, 9.5),
    (-2, 2, 9.5),
    (-2, 1.121, 21.121),
    (-2, -29.121, 21.121),
]))
fillet4.Radius = 3

sketch14 = body.newObject("Sketcher::SketchObject", "Sketch013")
sketch14.AttachmentSupport = (doc.getObject("XZ_Plane"), [""])
sketch14.MapMode = "FlatFace"
sketch14.AttachmentOffset = App.Placement(App.Vector(0, 0, 30), App.Rotation())
sketch14.addGeometry(Part.LineSegment(App.Vector(19, 3.5, 0), App.Vector(19, 1.5, 0)), False)
sketch14.addGeometry(Part.LineSegment(App.Vector(19, 1.5, 0), App.Vector(23, 1.5, 0)), False)
sketch14.addGeometry(Part.LineSegment(App.Vector(23, 1.5, 0), App.Vector(23, 3.5, 0)), False)
sketch14.addGeometry(Part.LineSegment(App.Vector(23, 3.5, 0), App.Vector(19, 3.5, 0)), False)
sketch14.addConstraint(Sketcher.Constraint("Coincident", 0, 2, 1, 1))
sketch14.addConstraint(Sketcher.Constraint("Coincident", 1, 2, 2, 1))
sketch14.addConstraint(Sketcher.Constraint("Coincident", 2, 2, 3, 1))
sketch14.addConstraint(Sketcher.Constraint("Coincident", 3, 2, 0, 1))
sketch14.addConstraint(Sketcher.Constraint("Vertical", 0))
sketch14.addConstraint(Sketcher.Constraint("Horizontal", 1))
sketch14.addConstraint(Sketcher.Constraint("Vertical", 2))
sketch14.addConstraint(Sketcher.Constraint("Horizontal", 3))
sketch14.addConstraint(Sketcher.Constraint("DistanceX", 1, 1, 1, 2, 4.0))
sketch14.addConstraint(Sketcher.Constraint("DistanceY", 0, 2, 0, 1, 2.0))
sketch14.addConstraint(Sketcher.Constraint("DistanceX", -1, 1, 0, 2, 19.0))
sketch14.addConstraint(Sketcher.Constraint("DistanceY", -1, 1, 0, 2, 1.5))
pocket8 = body.newObject("PartDesign::Pocket", "Pocket007")
pocket8.Profile = sketch14
pocket8.Type = "ThroughAll"
pocket8.Midplane = True

sketch15 = body.newObject("Sketcher::SketchObject", "Sketch014")
sketch15.AttachmentSupport = (doc.getObject("XZ_Plane"), [""])
sketch15.MapMode = "FlatFace"
sketch15.AttachmentOffset = App.Placement(App.Vector(0, 0, -2), App.Rotation())
sketch15.addGeometry(Part.LineSegment(App.Vector(10, 0, 0), App.Vector(10, 4, 0)), False)
sketch15.addGeometry(Part.LineSegment(App.Vector(10, 4, 0), App.Vector(12, 4, 0)), False)
sketch15.addGeometry(Part.LineSegment(App.Vector(12, 4, 0), App.Vector(12, 0, 0)), False)
sketch15.addGeometry(Part.LineSegment(App.Vector(12, 0, 0), App.Vector(10, 0, 0)), False)
sketch15.addConstraint(Sketcher.Constraint("Coincident", 0, 2, 1, 1))
sketch15.addConstraint(Sketcher.Constraint("Coincident", 1, 2, 2, 1))
sketch15.addConstraint(Sketcher.Constraint("Coincident", 2, 2, 3, 1))
sketch15.addConstraint(Sketcher.Constraint("Coincident", 3, 2, 0, 1))
sketch15.addConstraint(Sketcher.Constraint("Vertical", 0))
sketch15.addConstraint(Sketcher.Constraint("Horizontal", 1))
sketch15.addConstraint(Sketcher.Constraint("Vertical", 2))
sketch15.addConstraint(Sketcher.Constraint("Horizontal", 3))
sketch15.addConstraint(Sketcher.Constraint("PointOnObject", 2, 2, -1))
sketch15.addConstraint(Sketcher.Constraint("DistanceX", 1, 1, 1, 2, 2.0))
sketch15.addConstraint(Sketcher.Constraint("DistanceY", 0, 1, 0, 2, 4.0))
sketch15.addConstraint(Sketcher.Constraint("DistanceX", -1, 1, 0, 2, 10.0))
pocket9 = body.newObject("PartDesign::Pocket", "Pocket008")
pocket9.Profile = sketch15
pocket9.Length = 110
pocket9.Midplane = True

sketch16 = body.newObject("Sketcher::SketchObject", "Sketch015")
sketch16.AttachmentSupport = (doc.getObject("XZ_Plane"), [""])
sketch16.MapMode = "FlatFace"
sketch16.AttachmentOffset = App.Placement(App.Vector(0, 0, -2), App.Rotation())
sketch16.addGeometry(Part.LineSegment(App.Vector(2, 0, 0), App.Vector(2, 4, 0)), False)
sketch16.addGeometry(Part.LineSegment(App.Vector(2, 4, 0), App.Vector(6, 4, 0)), False)
sketch16.addGeometry(Part.LineSegment(App.Vector(6, 4, 0), App.Vector(6, 0, 0)), False)
sketch16.addGeometry(Part.LineSegment(App.Vector(6, 0, 0), App.Vector(2, 0, 0)), False)
sketch16.addConstraint(Sketcher.Constraint("Coincident", 0, 2, 1, 1))
sketch16.addConstraint(Sketcher.Constraint("Coincident", 1, 2, 2, 1))
sketch16.addConstraint(Sketcher.Constraint("Coincident", 2, 2, 3, 1))
sketch16.addConstraint(Sketcher.Constraint("Coincident", 3, 2, 0, 1))
sketch16.addConstraint(Sketcher.Constraint("Vertical", 0))
sketch16.addConstraint(Sketcher.Constraint("Horizontal", 1))
sketch16.addConstraint(Sketcher.Constraint("Vertical", 2))
sketch16.addConstraint(Sketcher.Constraint("Horizontal", 3))
sketch16.addConstraint(Sketcher.Constraint("PointOnObject", 2, 2, -1))
sketch16.addConstraint(Sketcher.Constraint("Equal", 3, 0))
sketch16.addConstraint(Sketcher.Constraint("DistanceX", 1, 1, 1, 2, 4.0))
sketch16.addConstraint(Sketcher.Constraint("DistanceX", -1, 1, 0, 2, 2.0))
pad7 = body.newObject("PartDesign::Pad", "Pad006")
pad7.Profile = sketch16
pad7.Length = 2

sketch17 = body.newObject("Sketcher::SketchObject", "Sketch016")
sketch17.AttachmentSupport = (doc.getObject("XZ_Plane"), [""])
sketch17.MapMode = "FlatFace"
sketch17.AttachmentOffset = App.Placement(App.Vector(0, 0, 30), App.Rotation())
sketch17.addGeometry(Part.LineSegment(App.Vector(2, 4, 0), App.Vector(2, 0, 0)), False)
sketch17.addGeometry(Part.LineSegment(App.Vector(2, 0, 0), App.Vector(6, 0, 0)), False)
sketch17.addGeometry(Part.LineSegment(App.Vector(6, 0, 0), App.Vector(6, 4, 0)), False)
sketch17.addGeometry(Part.LineSegment(App.Vector(6, 4, 0), App.Vector(2, 4, 0)), False)
sketch17.addConstraint(Sketcher.Constraint("Coincident", 0, 2, 1, 1))
sketch17.addConstraint(Sketcher.Constraint("Coincident", 1, 2, 2, 1))
sketch17.addConstraint(Sketcher.Constraint("Coincident", 2, 2, 3, 1))
sketch17.addConstraint(Sketcher.Constraint("Coincident", 3, 2, 0, 1))
sketch17.addConstraint(Sketcher.Constraint("Vertical", 0))
sketch17.addConstraint(Sketcher.Constraint("Horizontal", 1))
sketch17.addConstraint(Sketcher.Constraint("Vertical", 2))
sketch17.addConstraint(Sketcher.Constraint("Horizontal", 3))
sketch17.addConstraint(Sketcher.Constraint("PointOnObject", 0, 2, -1))
sketch17.addConstraint(Sketcher.Constraint("Equal", 3, 0))
sketch17.addConstraint(Sketcher.Constraint("DistanceX", 1, 1, 1, 2, 4.0))
sketch17.addConstraint(Sketcher.Constraint("DistanceX", -1, 1, 0, 2, 2.0))
pad8 = body.newObject("PartDesign::Pad", "Pad007")
pad8.Profile = sketch17
pad8.Length = 2
pad8.Reversed = True

sketch18 = body.newObject("Sketcher::SketchObject", "Sketch017")
sketch18.AttachmentSupport = (doc.getObject("XZ_Plane"), [""])
sketch18.MapMode = "FlatFace"
sketch18.AttachmentOffset = App.Placement(App.Vector(0, 0, 30), App.Rotation())
sketch18.addGeometry(Part.LineSegment(App.Vector(6, 9, 0), App.Vector(6, 4, 0)), False)
sketch18.addGeometry(Part.LineSegment(App.Vector(6, 4, 0), App.Vector(12, 4, 0)), False)
sketch18.addGeometry(Part.LineSegment(App.Vector(12, 4, 0), App.Vector(12, 9, 0)), False)
sketch18.addGeometry(Part.LineSegment(App.Vector(12, 9, 0), App.Vector(6, 9, 0)), False)
sketch18.addConstraint(Sketcher.Constraint("Coincident", 0, 2, 1, 1))
sketch18.addConstraint(Sketcher.Constraint("Coincident", 1, 2, 2, 1))
sketch18.addConstraint(Sketcher.Constraint("Coincident", 2, 2, 3, 1))
sketch18.addConstraint(Sketcher.Constraint("Coincident", 3, 2, 0, 1))
sketch18.addConstraint(Sketcher.Constraint("Vertical", 0))
sketch18.addConstraint(Sketcher.Constraint("Horizontal", 1))
sketch18.addConstraint(Sketcher.Constraint("Vertical", 2))
sketch18.addConstraint(Sketcher.Constraint("Horizontal", 3))
sketch18.addConstraint(Sketcher.Constraint("DistanceX", 1, 1, 1, 2, 6.0))
sketch18.addConstraint(Sketcher.Constraint("DistanceY", 0, 2, 0, 1, 5.0))
sketch18.addConstraint(Sketcher.Constraint("DistanceX", -1, 1, 0, 2, 6.0))
sketch18.addConstraint(Sketcher.Constraint("DistanceY", -1, 1, 0, 2, 4.0))
pocket10 = body.newObject("PartDesign::Pocket", "Pocket009")
pocket10.Profile = sketch18
pocket10.Length = 93
pocket10.Midplane = True

sketch19 = body.newObject("Sketcher::SketchObject", "Sketch018")
sketch19.AttachmentSupport = (doc.getObject("YZ_Plane"), [""])
sketch19.MapMode = "FlatFace"
sketch19.AttachmentOffset = App.Placement(App.Vector(0, 0, -2), App.Rotation())
sketch19.addGeometry(Part.LineSegment(App.Vector(-9, 5, 0), App.Vector(-19, 5, 0)), False)
sketch19.addGeometry(Part.LineSegment(App.Vector(-19, 5, 0), App.Vector(-19, 10, 0)), False)
sketch19.addGeometry(Part.LineSegment(App.Vector(-19, 10, 0), App.Vector(-9, 10, 0)), False)
sketch19.addGeometry(Part.LineSegment(App.Vector(-9, 10, 0), App.Vector(-9, 5, 0)), False)
sketch19.addConstraint(Sketcher.Constraint("Coincident", 0, 2, 1, 1))
sketch19.addConstraint(Sketcher.Constraint("Coincident", 1, 2, 2, 1))
sketch19.addConstraint(Sketcher.Constraint("Coincident", 2, 2, 3, 1))
sketch19.addConstraint(Sketcher.Constraint("Coincident", 3, 2, 0, 1))
sketch19.addConstraint(Sketcher.Constraint("Horizontal", 0))
sketch19.addConstraint(Sketcher.Constraint("Vertical", 1))
sketch19.addConstraint(Sketcher.Constraint("Horizontal", 2))
sketch19.addConstraint(Sketcher.Constraint("Vertical", 3))
sketch19.addConstraint(Sketcher.Constraint("DistanceX", 0, 2, 0, 1, 10.0))
sketch19.addConstraint(Sketcher.Constraint("DistanceY", 1, 1, 1, 2, 5.0))
sketch19.addConstraint(Sketcher.Constraint("DistanceX", 0, 2, -1, 1, 19.0))
sketch19.addConstraint(Sketcher.Constraint("DistanceY", -1, 1, 0, 2, 5.0))
pocket11 = body.newObject("PartDesign::Pocket", "Pocket010")
pocket11.Profile = sketch19
pocket11.Length = 13
pocket11.Reversed = True

sketch20 = body.newObject("Sketcher::SketchObject", "Sketch019")
sketch20.AttachmentSupport = (doc.getObject("XY_Plane"), [""])
sketch20.MapMode = "FlatFace"
sketch20.AttachmentOffset = App.Placement(App.Vector(0, 0, 24.5), App.Rotation())
sketch20.addGeometry(Part.Circle(App.Vector(33, -14, 0), App.Vector(0, 0, 1), 6), False)
sketch20.addGeometry(Part.Circle(App.Vector(33, -14, 0), App.Vector(0, 0, 1), 5), False)
sketch20.addConstraint(Sketcher.Constraint("Coincident", 1, 3, 0, 3))
sketch20.addConstraint(Sketcher.Constraint("Diameter", 0, 13.0))
sketch20.addConstraint(Sketcher.Constraint("Diameter", 1, 10.0))
sketch20.addConstraint(Sketcher.Constraint("DistanceY", 0, 3, -1, 1, 14.0))
sketch20.addConstraint(Sketcher.Constraint("DistanceX", -1, 1, 0, 3, 32.75))
pocket12 = body.newObject("PartDesign::Pocket", "Pocket011")
pocket12.Profile = sketch20
pocket12.Length = 3.5
pocket12.Reversed = True

sketch21 = body.newObject("Sketcher::SketchObject", "Sketch020")
sketch21.AttachmentSupport = (doc.getObject("XY_Plane"), [""])
sketch21.MapMode = "FlatFace"
sketch21.AttachmentOffset = App.Placement(App.Vector(0, 0, 24.5), App.Rotation())
sketch21.addGeometry(Part.LineSegment(App.Vector(27, -8, 0), App.Vector(27, -20, 0)), False)
sketch21.addGeometry(Part.LineSegment(App.Vector(27, -20, 0), App.Vector(38, -20, 0)), False)
sketch21.addGeometry(Part.LineSegment(App.Vector(38, -20, 0), App.Vector(38, -8, 0)), False)
sketch21.addGeometry(Part.LineSegment(App.Vector(38, -8, 0), App.Vector(27, -8, 0)), False)
sketch21.addConstraint(Sketcher.Constraint("Coincident", 0, 2, 1, 1))
sketch21.addConstraint(Sketcher.Constraint("Coincident", 1, 2, 2, 1))
sketch21.addConstraint(Sketcher.Constraint("Coincident", 2, 2, 3, 1))
sketch21.addConstraint(Sketcher.Constraint("Coincident", 3, 2, 0, 1))
sketch21.addConstraint(Sketcher.Constraint("Vertical", 0))
sketch21.addConstraint(Sketcher.Constraint("Horizontal", 1))
sketch21.addConstraint(Sketcher.Constraint("Vertical", 2))
sketch21.addConstraint(Sketcher.Constraint("Horizontal", 3))
sketch21.addConstraint(Sketcher.Constraint("Equal", 3, 0))
sketch21.addConstraint(Sketcher.Constraint("DistanceX", 1, 1, 1, 2, 11.5))
sketch21.addConstraint(Sketcher.Constraint("DistanceX", -1, 1, 0, 2, 27.0))
sketch21.addConstraint(Sketcher.Constraint("DistanceY", 0, 2, -1, 1, 19.75))
pocket13 = body.newObject("PartDesign::Pocket", "Pocket012")
pocket13.Profile = sketch21
pocket13.Length = 2.5

doc.recompute()
